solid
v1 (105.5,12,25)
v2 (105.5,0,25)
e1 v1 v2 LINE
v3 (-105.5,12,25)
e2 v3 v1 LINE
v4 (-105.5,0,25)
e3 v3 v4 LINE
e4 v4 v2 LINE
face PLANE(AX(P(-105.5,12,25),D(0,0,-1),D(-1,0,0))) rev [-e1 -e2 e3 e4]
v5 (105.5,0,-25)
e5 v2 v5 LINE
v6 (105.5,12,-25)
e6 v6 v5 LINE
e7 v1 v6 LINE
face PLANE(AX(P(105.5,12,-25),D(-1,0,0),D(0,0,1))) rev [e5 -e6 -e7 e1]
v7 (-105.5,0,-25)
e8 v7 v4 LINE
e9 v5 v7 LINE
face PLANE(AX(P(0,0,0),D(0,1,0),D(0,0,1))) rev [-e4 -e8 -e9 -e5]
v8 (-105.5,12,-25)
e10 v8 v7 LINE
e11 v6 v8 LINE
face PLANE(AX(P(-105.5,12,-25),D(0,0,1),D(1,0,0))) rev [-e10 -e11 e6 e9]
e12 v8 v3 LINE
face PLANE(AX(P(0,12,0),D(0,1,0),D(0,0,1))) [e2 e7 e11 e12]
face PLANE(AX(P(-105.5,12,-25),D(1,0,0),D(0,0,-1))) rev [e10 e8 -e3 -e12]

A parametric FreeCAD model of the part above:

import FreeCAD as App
import Part
import Sketcher
Q = App.Units.Quantity


def add_polygon(sketch, points):
    """Adds a closed chain of lines whose ends are joined by coincident constraints."""
    first, n = sketch.GeometryCount, len(points)
    for a, b in zip(points, points[1:] + points[:1]):
        sketch.addGeometry(Part.LineSegment(App.Vector(*a, 0), App.Vector(*b, 0)), False)
    for i in range(n):
        sketch.addConstraint(Sketcher.Constraint("Coincident", first + i, 2, first + (i + 1) % n, 1))

doc = App.newDocument("Part")
body = doc.addObject("PartDesign::Body", "Body")

sketch1 = body.newObject("Sketcher::SketchObject", "Sketch")
sketch1.AttachmentSupport = (doc.getObject("XZ_Plane"), [""])
sketch1.MapMode = "FlatFace"
add_polygon(sketch1, [(-106, -25), (-106, 25), (106, 25), (106, -25)])
sketch1.addConstraint([
    Sketcher.Constraint("Vertical", 0),
    Sketcher.Constraint("Horizontal", 1),
    Sketcher.Constraint("Vertical", 2),
    Sketcher.Constraint("Horizontal", 3),
    Sketcher.Constraint("Symmetric", 0, 2, 2, 2, -1, 1),
    Sketcher.Constraint("DistanceX", 1, 1, 1, 2, Q("211 mm")),
    Sketcher.Constraint("DistanceY", 0, 1, 0, 2, Q("50 mm")),
])
pad1 = body.newObject("PartDesign::Pad", "Pad")
pad1.Profile = sketch1
pad1.Length = 12
pad1.Reversed = True

doc.recompute()
